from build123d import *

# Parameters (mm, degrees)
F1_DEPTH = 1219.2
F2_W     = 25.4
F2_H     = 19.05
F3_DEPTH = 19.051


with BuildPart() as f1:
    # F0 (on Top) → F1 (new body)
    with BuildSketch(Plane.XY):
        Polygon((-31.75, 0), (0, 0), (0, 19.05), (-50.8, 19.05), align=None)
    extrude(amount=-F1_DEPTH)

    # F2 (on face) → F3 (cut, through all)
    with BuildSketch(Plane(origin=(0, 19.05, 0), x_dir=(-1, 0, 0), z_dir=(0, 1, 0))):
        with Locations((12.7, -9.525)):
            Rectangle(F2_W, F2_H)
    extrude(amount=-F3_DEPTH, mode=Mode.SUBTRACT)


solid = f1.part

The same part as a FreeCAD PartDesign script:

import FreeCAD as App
import Part
import Sketcher

V = App.Vector
Q = App.Units.Quantity

doc = App.newDocument("Part")
body = doc.addObject("PartDesign::Body", "Body")

sketch1 = doc.addObject("Sketcher::SketchObject", "Sketch")
body.addObject(sketch1)
sketch1.AttachmentSupport = (doc.XY_Plane, [""])
sketch1.MapMode = "FlatFace"
sketch1.addGeometry(Part.LineSegment(V(-32, 0, 0), V(0, 0, 0)), False)
sketch1.addGeometry(Part.LineSegment(V(0, 0, 0), V(0, 19, 0)), False)
sketch1.addGeometry(Part.LineSegment(V(0, 19, 0), V(-51, 19, 0)), False)
sketch1.addGeometry(Part.LineSegment(V(-51, 19, 0), V(-32, 0, 0)), False)
sketch1.addConstraint(Sketcher.Constraint("Coincident", 0, 2, 1, 1))
sketch1.addConstraint(Sketcher.Constraint("Coincident", 1, 2, 2, 1))
sketch1.addConstraint(Sketcher.Constraint("Coincident", 2, 2, 3, 1))
sketch1.addConstraint(Sketcher.Constraint("Coincident", 3, 2, 0, 1))
sketch1.addConstraint(Sketcher.Constraint("Horizontal", 0))
sketch1.addConstraint(Sketcher.Constraint("Vertical", 1))
sketch1.addConstraint(Sketcher.Constraint("Horizontal", 2))
sketch1.addConstraint(Sketcher.Constraint("Coincident", 0, 2, -1, 1))
sketch1.addConstraint(Sketcher.Constraint("DistanceX", 2, 2, 2, 1, Q("2 in")))
sketch1.addConstraint(Sketcher.Constraint("Angle", 3, Q("-45 deg")))
sketch1.addConstraint(Sketcher.Constraint("DistanceX", 0, 1, 0, 2, Q("1.25 in")))
pad1 = doc.addObject("PartDesign::Pad", "Pad")
body.addObject(pad1)
pad1.Profile = sketch1
pad1.Length = Q("48 in")
pad1.Reversed = True

sketch2 = doc.addObject("Sketcher::SketchObject", "Sketch001")
body.addObject(sketch2)
sketch2.AttachmentSupport = (doc.XZ_Plane, [""])
sketch2.MapMode = "FlatFace"
sketch2.AttachmentOffset = App.Placement(V(0, 0, -0.75 * 25.4), App.Rotation())
sketch2.addGeometry(Part.LineSegment(V(0, 0, 0), V(0, -19, 0)), False)
sketch2.addGeometry(Part.LineSegment(V(0, -19, 0), V(-25, -19, 0)), False)
sketch2.addGeometry(Part.LineSegment(V(-25, -19, 0), V(-25, 0, 0)), False)
sketch2.addGeometry(Part.LineSegment(V(-25, 0, 0), V(0, 0, 0)), False)
sketch2.addConstraint(Sketcher.Constraint("Coincident", 0, 2, 1, 1))
sketch2.addConstraint(Sketcher.Constraint("Coincident", 1, 2, 2, 1))
sketch2.addConstraint(Sketcher.Constraint("Coincident", 2, 2, 3, 1))
sketch2.addConstraint(Sketcher.Constraint("Coincident", 3, 2, 0, 1))
sketch2.addConstraint(Sketcher.Constraint("Vertical", 0))
sketch2.addConstraint(Sketcher.Constraint("Horizontal", 1))
sketch2.addConstraint(Sketcher.Constraint("Vertical", 2))
sketch2.addConstraint(Sketcher.Constraint("Horizontal", 3))
sketch2.addConstraint(Sketcher.Constraint("Coincident", 3, 2, -1, 1))
sketch2.addConstraint(Sketcher.Constraint("DistanceX", 1, 2, 1, 1, Q("1 in")))
sketch2.addConstraint(Sketcher.Constraint("DistanceY", 0, 2, 0, 1, Q("0.75 in")))
pocket1 = doc.addObject("PartDesign::Pocket", "Pocket")
body.addObject(pocket1)
pocket1.Profile = sketch2
pocket1.Type = "ThroughAll"
pocket1.Reversed = True

doc.recompute()
